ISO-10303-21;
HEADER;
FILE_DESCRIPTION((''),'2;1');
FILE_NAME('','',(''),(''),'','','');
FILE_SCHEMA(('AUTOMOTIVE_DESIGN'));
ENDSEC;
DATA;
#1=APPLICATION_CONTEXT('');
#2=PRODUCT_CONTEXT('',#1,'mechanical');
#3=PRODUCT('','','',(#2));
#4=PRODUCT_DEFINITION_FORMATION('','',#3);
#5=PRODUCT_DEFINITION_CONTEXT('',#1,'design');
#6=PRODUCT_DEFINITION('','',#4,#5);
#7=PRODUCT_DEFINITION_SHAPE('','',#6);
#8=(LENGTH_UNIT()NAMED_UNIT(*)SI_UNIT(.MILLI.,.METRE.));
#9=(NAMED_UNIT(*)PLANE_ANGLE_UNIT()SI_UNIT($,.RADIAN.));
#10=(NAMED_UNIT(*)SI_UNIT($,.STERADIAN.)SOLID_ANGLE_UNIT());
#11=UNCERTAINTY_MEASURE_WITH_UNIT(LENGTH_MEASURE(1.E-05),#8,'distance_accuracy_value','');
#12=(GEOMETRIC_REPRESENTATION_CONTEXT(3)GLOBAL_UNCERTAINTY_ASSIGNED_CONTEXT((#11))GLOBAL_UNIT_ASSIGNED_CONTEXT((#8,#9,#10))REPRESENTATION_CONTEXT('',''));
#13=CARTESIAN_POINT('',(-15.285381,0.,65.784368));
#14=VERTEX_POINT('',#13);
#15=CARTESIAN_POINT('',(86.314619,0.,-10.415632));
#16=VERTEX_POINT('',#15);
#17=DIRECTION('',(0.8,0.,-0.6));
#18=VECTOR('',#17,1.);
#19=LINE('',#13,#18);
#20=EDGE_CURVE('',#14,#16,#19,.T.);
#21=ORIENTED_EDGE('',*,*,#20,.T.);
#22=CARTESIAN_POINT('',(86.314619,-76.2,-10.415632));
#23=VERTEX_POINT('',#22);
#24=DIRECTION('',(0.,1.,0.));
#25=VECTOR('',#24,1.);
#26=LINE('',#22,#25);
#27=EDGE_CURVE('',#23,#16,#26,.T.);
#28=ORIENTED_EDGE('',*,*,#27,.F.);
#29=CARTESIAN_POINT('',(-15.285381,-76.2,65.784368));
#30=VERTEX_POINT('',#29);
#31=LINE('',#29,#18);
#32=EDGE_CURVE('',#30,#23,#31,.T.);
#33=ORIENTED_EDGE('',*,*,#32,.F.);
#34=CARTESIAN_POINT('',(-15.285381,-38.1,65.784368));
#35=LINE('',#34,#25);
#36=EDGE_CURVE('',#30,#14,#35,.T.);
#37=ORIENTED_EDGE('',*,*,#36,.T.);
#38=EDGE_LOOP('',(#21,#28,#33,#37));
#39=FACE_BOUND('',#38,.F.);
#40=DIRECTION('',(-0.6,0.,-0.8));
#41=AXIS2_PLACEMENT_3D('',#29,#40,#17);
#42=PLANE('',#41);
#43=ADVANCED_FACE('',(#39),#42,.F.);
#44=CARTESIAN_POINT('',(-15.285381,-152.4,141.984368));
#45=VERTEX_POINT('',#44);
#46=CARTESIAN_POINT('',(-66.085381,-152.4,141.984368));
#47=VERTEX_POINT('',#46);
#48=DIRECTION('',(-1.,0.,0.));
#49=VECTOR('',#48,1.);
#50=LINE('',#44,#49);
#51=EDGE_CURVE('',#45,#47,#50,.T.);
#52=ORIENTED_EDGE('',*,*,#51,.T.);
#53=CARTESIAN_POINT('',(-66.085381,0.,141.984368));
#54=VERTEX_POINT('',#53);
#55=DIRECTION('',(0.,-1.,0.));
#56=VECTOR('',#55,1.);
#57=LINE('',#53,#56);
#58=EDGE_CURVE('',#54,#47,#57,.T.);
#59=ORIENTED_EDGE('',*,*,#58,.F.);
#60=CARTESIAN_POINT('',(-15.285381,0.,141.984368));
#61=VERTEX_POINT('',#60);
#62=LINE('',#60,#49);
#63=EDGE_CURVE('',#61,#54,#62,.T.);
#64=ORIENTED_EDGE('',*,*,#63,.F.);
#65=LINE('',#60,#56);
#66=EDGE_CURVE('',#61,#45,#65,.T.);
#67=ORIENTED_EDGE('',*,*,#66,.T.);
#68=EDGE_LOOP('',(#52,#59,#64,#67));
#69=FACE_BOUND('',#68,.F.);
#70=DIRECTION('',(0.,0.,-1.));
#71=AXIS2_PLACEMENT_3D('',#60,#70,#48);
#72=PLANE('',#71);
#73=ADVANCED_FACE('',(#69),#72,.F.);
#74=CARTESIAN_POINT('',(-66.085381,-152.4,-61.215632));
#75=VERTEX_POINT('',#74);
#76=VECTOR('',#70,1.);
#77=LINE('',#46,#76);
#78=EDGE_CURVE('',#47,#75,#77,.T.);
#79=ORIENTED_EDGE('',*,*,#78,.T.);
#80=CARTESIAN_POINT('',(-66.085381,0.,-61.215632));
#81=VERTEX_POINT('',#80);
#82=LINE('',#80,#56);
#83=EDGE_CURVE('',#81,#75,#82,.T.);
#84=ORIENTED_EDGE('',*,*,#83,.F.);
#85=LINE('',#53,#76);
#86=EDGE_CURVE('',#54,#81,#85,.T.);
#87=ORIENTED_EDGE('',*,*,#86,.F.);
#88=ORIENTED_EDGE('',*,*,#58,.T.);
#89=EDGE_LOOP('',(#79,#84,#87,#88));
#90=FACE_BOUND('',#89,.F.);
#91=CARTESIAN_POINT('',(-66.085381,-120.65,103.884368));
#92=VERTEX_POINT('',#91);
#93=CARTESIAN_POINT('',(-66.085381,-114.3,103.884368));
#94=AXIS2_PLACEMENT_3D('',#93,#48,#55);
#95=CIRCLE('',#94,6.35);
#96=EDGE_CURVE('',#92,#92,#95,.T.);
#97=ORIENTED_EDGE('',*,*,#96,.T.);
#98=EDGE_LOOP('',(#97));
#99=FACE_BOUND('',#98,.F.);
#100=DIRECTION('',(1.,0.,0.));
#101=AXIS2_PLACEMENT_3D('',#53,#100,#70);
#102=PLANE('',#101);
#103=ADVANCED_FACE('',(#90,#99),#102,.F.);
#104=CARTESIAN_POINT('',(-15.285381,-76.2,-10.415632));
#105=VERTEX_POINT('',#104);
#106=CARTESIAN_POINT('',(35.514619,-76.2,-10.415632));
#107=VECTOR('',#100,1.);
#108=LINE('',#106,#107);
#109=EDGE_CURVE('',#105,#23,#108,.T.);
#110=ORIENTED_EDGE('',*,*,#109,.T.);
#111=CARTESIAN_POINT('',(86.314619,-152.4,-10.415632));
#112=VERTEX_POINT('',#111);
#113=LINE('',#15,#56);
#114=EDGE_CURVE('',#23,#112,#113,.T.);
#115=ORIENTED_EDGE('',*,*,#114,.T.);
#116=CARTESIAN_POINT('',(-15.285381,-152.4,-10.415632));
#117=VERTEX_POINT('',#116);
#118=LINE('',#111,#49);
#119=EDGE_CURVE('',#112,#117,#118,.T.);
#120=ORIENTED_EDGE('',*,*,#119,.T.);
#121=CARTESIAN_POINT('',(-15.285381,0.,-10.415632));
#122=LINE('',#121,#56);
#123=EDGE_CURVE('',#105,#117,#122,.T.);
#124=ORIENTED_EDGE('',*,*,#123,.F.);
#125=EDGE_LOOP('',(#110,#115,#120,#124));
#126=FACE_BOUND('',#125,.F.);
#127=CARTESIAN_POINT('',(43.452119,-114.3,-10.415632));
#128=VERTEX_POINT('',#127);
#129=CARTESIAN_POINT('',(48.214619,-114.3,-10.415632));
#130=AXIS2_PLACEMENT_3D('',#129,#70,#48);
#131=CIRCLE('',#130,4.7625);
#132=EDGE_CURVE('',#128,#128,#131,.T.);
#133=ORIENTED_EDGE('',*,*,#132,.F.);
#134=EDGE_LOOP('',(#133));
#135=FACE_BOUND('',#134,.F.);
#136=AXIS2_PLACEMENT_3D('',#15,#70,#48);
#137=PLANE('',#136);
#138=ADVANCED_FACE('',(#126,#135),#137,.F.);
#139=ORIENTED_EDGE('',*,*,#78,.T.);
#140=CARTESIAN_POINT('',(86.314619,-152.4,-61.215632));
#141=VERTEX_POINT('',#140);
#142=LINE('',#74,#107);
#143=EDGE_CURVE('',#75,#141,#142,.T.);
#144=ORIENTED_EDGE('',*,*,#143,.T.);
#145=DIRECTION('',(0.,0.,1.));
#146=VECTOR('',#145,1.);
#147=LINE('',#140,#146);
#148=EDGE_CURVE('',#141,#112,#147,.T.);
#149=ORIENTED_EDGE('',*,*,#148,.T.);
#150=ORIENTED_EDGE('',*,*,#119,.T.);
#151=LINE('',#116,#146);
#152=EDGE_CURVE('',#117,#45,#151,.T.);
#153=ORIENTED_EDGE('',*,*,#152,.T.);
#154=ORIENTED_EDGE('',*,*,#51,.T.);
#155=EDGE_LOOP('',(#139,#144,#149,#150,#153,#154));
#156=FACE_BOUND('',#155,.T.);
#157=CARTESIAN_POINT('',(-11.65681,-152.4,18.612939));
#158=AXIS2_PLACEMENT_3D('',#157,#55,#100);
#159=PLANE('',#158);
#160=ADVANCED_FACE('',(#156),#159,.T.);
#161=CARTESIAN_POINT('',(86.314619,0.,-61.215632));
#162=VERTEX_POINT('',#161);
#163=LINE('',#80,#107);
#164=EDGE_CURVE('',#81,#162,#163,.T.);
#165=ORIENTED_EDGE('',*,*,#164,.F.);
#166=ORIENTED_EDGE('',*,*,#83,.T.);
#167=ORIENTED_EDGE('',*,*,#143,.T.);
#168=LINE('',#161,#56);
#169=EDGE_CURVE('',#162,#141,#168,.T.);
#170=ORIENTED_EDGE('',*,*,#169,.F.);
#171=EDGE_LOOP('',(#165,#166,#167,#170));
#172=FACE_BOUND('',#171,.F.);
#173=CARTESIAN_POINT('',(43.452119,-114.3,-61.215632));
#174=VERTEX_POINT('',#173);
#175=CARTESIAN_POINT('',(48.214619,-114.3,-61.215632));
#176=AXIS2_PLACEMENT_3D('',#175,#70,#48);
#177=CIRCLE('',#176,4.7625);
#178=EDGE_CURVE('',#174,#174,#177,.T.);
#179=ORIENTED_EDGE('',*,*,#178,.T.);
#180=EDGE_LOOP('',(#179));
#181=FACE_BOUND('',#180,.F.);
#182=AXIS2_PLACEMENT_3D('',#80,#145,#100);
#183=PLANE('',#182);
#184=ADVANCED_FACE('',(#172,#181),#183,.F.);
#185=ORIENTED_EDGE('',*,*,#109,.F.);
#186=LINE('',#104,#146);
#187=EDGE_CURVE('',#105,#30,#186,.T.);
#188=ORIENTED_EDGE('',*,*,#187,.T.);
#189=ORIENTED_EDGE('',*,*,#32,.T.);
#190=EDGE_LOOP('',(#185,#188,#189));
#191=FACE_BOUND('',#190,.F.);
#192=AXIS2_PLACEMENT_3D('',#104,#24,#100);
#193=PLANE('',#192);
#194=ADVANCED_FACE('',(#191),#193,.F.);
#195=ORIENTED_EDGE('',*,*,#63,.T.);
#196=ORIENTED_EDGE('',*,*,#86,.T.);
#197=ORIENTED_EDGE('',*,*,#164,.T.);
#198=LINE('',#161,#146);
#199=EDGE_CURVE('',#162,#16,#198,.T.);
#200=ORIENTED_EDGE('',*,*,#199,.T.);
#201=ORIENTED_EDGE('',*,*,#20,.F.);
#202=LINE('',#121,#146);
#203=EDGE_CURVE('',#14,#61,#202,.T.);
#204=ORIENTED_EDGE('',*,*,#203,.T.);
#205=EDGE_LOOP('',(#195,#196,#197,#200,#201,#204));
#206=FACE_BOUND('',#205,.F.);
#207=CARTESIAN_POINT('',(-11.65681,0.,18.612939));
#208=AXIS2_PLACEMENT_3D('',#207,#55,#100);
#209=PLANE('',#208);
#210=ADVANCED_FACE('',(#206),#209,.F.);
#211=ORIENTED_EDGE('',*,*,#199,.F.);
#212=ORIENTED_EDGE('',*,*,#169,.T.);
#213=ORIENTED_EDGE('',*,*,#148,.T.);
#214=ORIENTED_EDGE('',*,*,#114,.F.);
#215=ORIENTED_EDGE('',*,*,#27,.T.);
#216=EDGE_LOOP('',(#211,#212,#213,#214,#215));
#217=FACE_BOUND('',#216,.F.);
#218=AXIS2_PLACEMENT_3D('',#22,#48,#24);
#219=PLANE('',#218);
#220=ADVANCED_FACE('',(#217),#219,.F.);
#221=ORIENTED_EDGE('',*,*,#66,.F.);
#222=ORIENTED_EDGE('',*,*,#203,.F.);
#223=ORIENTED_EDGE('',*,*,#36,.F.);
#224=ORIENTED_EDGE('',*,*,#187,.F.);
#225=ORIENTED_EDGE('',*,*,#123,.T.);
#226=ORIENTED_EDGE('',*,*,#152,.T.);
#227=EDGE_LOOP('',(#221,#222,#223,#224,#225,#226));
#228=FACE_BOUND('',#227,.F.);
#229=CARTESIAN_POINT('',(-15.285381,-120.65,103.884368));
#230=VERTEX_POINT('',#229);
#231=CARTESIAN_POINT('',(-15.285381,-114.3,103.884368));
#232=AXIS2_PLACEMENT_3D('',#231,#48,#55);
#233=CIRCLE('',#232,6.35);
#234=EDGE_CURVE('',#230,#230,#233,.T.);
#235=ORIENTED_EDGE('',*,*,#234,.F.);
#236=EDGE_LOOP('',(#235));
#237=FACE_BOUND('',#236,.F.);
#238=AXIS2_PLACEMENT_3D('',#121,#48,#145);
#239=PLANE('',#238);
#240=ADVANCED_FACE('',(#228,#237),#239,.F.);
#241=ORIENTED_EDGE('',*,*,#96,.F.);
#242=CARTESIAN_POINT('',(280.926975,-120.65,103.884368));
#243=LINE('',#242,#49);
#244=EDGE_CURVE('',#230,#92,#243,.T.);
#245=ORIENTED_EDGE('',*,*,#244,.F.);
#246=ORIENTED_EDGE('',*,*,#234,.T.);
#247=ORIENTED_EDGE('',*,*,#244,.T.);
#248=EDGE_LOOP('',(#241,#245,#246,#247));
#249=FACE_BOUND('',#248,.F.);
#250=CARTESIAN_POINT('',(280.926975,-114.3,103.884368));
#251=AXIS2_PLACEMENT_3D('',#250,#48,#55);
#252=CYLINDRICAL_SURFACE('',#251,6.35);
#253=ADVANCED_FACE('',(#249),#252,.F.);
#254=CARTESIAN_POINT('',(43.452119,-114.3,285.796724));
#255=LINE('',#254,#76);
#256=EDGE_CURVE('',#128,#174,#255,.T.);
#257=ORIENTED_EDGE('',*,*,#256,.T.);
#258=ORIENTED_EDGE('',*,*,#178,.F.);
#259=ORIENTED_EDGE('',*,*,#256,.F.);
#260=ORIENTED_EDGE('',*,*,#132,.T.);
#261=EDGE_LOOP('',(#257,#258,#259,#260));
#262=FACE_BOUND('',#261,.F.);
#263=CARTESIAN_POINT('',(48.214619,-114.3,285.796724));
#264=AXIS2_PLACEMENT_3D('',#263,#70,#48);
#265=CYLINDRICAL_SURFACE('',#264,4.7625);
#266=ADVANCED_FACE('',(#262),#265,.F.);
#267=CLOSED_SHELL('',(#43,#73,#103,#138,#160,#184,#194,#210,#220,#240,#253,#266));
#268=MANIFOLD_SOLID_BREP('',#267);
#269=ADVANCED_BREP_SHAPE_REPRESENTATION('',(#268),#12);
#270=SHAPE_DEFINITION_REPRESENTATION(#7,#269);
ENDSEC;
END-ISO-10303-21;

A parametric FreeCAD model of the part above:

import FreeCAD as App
import Part
import Sketcher

V = App.Vector
Q = App.Units.Quantity


def add_polygon(sketch, points):
    """Adds a closed chain of lines whose ends are joined by coincident constraints."""
    first, n = sketch.GeometryCount, len(points)
    for a, b in zip(points, points[1:] + points[:1]):
        sketch.addGeometry(Part.LineSegment(App.Vector(*a, 0), App.Vector(*b, 0)), False)
    for i in range(n):
        sketch.addConstraint(Sketcher.Constraint("Coincident", first + i, 2, first + (i + 1) % n, 1))

doc = App.newDocument("Part")
body = doc.addObject("PartDesign::Body", "Body")

# Sketch on XZ plane
sketch1 = doc.addObject("Sketcher::SketchObject", "Sketch")
body.addObject(sketch1)
sketch1.AttachmentSupport = (doc.XZ_Plane, [""])
sketch1.MapMode = "FlatFace"
add_polygon(sketch1, [(-15, 142), (-66, 142), (-66, -61), (86, -61), (86, -10), (-15, -10)])  # lines 0-5
sketch1.addConstraint([
    Sketcher.Constraint("Horizontal", 0),
    Sketcher.Constraint("Vertical", 1),
    Sketcher.Constraint("Horizontal", 2),
    Sketcher.Constraint("Vertical", 3),
    Sketcher.Constraint("Horizontal", 4),
    Sketcher.Constraint("Vertical", 5),
    Sketcher.Constraint("Equal", 0, 3),
    Sketcher.Constraint("Equal", 2, 5),
    Sketcher.Constraint("DistanceX", 0, 2, 0, 1, Q("2 in")),
    Sketcher.Constraint("DistanceX", 2, 1, 2, 2, Q("6 in")),
    Sketcher.Constraint("DistanceX", 0, 2, -1, 1, Q("66.085381 mm")),
    Sketcher.Constraint("DistanceY", -1, 1, 0, 2, Q("141.984368 mm")),
])
pad1 = doc.addObject("PartDesign::Pad", "Pad")
body.addObject(pad1)
pad1.Profile = sketch1
pad1.Length = Q("6 in")

# Sketch on XY plane
sketch2 = doc.addObject("Sketcher::SketchObject", "Sketch001")
body.addObject(sketch2)
sketch2.AttachmentSupport = (doc.XY_Plane, [""])
sketch2.MapMode = "FlatFace"
sketch2.AttachmentOffset = App.Placement(V(0, 0, -10.415632), App.Rotation())
add_polygon(sketch2, [(-15, 0), (-15, -76), (86, -76), (86, 0)])  # lines 0-3
sketch2.addConstraint([
    Sketcher.Constraint("Vertical", 0),
    Sketcher.Constraint("Horizontal", 1),
    Sketcher.Constraint("Vertical", 2),
    Sketcher.Constraint("Horizontal", 3),
    Sketcher.Constraint("PointOnObject", 2, 2, -1),
    Sketcher.Constraint("DistanceX", 1, 1, 1, 2, Q("4 in")),
    Sketcher.Constraint("DistanceY", 0, 2, 0, 1, Q("3 in")),
    Sketcher.Constraint("DistanceX", 0, 2, -1, 1, Q("15.285381 mm")),
])
pad2 = doc.addObject("PartDesign::Pad", "Pad001")
body.addObject(pad2)
pad2.Profile = sketch2
pad2.Length = Q("3 in")

# Sketch on XZ plane
sketch3 = doc.addObject("Sketcher::SketchObject", "Sketch002")
body.addObject(sketch3)
sketch3.AttachmentSupport = (doc.XZ_Plane, [""])
sketch3.MapMode = "FlatFace"
sketch3.AttachmentOffset = App.Placement(V(0, 0, 3 * 25.4), App.Rotation())
add_polygon(sketch3, [(86, 66), (-15, 66), (86, -10)])  # lines 0-2
sketch3.addConstraint([
    Sketcher.Constraint("Horizontal", 0),
    Sketcher.Constraint("Vertical", 2),
    Sketcher.Constraint("DistanceX", 0, 2, 0, 1, Q("4 in")),
    Sketcher.Constraint("DistanceY", 2, 1, 2, 2, Q("3 in")),
    Sketcher.Constraint("DistanceX", 0, 2, -1, 1, Q("15.285381 mm")),
    Sketcher.Constraint("DistanceY", -1, 1, 0, 2, Q("65.784368 mm")),
])
pocket1 = doc.addObject("PartDesign::Pocket", "Pocket")
body.addObject(pocket1)
pocket1.Profile = sketch3
pocket1.Length = Q("3 in")

# Sketch on XY plane
sketch4 = doc.addObject("Sketcher::SketchObject", "Sketch003")
body.addObject(sketch4)
sketch4.AttachmentSupport = (doc.XY_Plane, [""])
sketch4.MapMode = "FlatFace"
sketch4.AttachmentOffset = App.Placement(V(0, 0, -10.415632), App.Rotation())
sketch4.addGeometry(Part.Circle(V(48.2, -114.3, 0), V(0, 0, 1), 4.8), False)
sketch4.addConstraint([
    Sketcher.Constraint("Diameter", 0, Q("0.375 in")),
    Sketcher.Constraint("DistanceY", 0, 3, -1, 1, Q("4.5 in")),
    Sketcher.Constraint("DistanceX", -1, 1, 0, 3, Q("48.214619 mm")),
])
doc.recompute()
hole = doc.addObject("PartDesign::Hole", "Hole")
body.addObject(hole)
hole.Profile = sketch4
hole.ThreadType = "None"
hole.Diameter = Q("0.375 in")
hole.DepthType = "ThroughAll"

# Sketch on YZ plane
sketch5 = doc.addObject("Sketcher::SketchObject", "Sketch004")
body.addObject(sketch5)
sketch5.AttachmentSupport = (doc.YZ_Plane, [""])
sketch5.MapMode = "FlatFace"
sketch5.AttachmentOffset = App.Placement(V(0, 0, -15.285381), App.Rotation())
sketch5.addGeometry(Part.Circle(V(-114, 104, 0), V(0, 0, 1), 6), False)
sketch5.addConstraint([
    Sketcher.Constraint("Diameter", 0, Q("0.5 in")),
    Sketcher.Constraint("DistanceX", 0, 3, -1, 1, Q("4.5 in")),
    Sketcher.Constraint("DistanceY", -1, 1, 0, 3, Q("103.884368 mm")),
])
doc.recompute()
hole2 = doc.addObject("PartDesign::Hole", "Hole001")
body.addObject(hole2)
hole2.Profile = sketch5
hole2.ThreadType = "None"
hole2.Diameter = Q("0.5 in")
hole2.DepthType = "ThroughAll"

doc.recompute()
